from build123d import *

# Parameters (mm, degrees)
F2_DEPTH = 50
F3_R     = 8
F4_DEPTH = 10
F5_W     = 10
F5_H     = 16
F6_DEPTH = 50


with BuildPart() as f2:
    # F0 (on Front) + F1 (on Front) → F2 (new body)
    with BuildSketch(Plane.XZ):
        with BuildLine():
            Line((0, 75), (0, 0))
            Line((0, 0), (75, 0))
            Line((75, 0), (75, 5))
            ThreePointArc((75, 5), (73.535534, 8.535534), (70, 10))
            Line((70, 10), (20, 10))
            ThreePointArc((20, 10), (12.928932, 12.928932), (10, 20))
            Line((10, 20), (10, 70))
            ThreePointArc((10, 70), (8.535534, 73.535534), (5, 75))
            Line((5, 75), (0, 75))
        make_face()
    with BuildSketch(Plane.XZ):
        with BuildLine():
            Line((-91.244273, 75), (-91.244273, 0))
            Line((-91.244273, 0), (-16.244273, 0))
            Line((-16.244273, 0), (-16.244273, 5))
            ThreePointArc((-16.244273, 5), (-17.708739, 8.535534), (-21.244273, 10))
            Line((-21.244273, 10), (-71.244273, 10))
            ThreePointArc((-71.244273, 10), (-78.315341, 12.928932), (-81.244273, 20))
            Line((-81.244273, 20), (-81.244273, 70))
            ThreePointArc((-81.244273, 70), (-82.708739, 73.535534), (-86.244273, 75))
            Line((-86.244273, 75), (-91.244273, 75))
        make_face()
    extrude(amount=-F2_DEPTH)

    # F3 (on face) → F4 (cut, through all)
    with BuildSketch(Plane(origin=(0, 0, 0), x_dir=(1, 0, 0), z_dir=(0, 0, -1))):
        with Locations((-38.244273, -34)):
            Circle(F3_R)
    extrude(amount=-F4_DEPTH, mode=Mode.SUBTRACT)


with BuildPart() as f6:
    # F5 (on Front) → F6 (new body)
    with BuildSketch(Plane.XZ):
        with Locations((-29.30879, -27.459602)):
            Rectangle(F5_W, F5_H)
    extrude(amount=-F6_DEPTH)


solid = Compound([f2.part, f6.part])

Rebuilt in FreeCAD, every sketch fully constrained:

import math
import FreeCAD as App
import Part
import Sketcher
Q = App.Units.Quantity

doc = App.newDocument("Part")
body = doc.addObject("PartDesign::Body", "Body")
body.AllowCompound = True

# Sketch on XZ plane
sketch1 = body.newObject("Sketcher::SketchObject", "Sketch")
sketch1.AttachmentSupport = (doc.getObject("XZ_Plane"), [""])
sketch1.MapMode = "FlatFace"
sketch1.addGeometry(Part.LineSegment(App.Vector(0, 75, 0), App.Vector(0, 0, 0)), False)
sketch1.addGeometry(Part.LineSegment(App.Vector(0, 0, 0), App.Vector(75, 0, 0)), False)
sketch1.addGeometry(Part.LineSegment(App.Vector(75, 0, 0), App.Vector(75, 5, 0)), False)
sketch1.addGeometry(Part.ArcOfCircle(Part.Circle(App.Vector(70, 5, 0), App.Vector(0, 0, 1), 5), math.radians(0), math.radians(90)), False)
sketch1.addGeometry(Part.LineSegment(App.Vector(70, 10, 0), App.Vector(20, 10, 0)), False)
sketch1.addGeometry(Part.ArcOfCircle(Part.Circle(App.Vector(20, 20, 0), App.Vector(0, 0, 1), 10), math.radians(180), math.radians(270)), False)
sketch1.addGeometry(Part.LineSegment(App.Vector(10, 20, 0), App.Vector(10, 70, 0)), False)
sketch1.addGeometry(Part.ArcOfCircle(Part.Circle(App.Vector(5, 70, 0), App.Vector(0, 0, 1), 5), math.radians(0), math.radians(90)), False)
sketch1.addGeometry(Part.LineSegment(App.Vector(5, 75, 0), App.Vector(0, 75, 0)), False)
sketch1.addGeometry(Part.LineSegment(App.Vector(-91.2, 75, 0), App.Vector(-91.2, 0, 0)), False)
sketch1.addGeometry(Part.LineSegment(App.Vector(-91.2, 0, 0), App.Vector(-16.2, 0, 0)), False)
sketch1.addGeometry(Part.LineSegment(App.Vector(-16.2, 0, 0), App.Vector(-16.2, 5, 0)), False)
sketch1.addGeometry(Part.ArcOfCircle(Part.Circle(App.Vector(-21.2, 5, 0), App.Vector(0, 0, 1), 5), math.radians(0), math.radians(90)), False)
sketch1.addGeometry(Part.LineSegment(App.Vector(-21.2, 10, 0), App.Vector(-71.2, 10, 0)), False)
sketch1.addGeometry(Part.ArcOfCircle(Part.Circle(App.Vector(-71.2, 20, 0), App.Vector(0, 0, 1), 10), math.radians(180), math.radians(270)), False)
sketch1.addGeometry(Part.LineSegment(App.Vector(-81.2, 20, 0), App.Vector(-81.2, 70, 0)), False)
sketch1.addGeometry(Part.ArcOfCircle(Part.Circle(App.Vector(-86.2, 70, 0), App.Vector(0, 0, 1), 5), math.radians(0), math.radians(90)), False)
sketch1.addGeometry(Part.LineSegment(App.Vector(-86.2, 75, 0), App.Vector(-91.2, 75, 0)), False)
sketch1.addConstraint(Sketcher.Constraint("Coincident", 0, 2, 1, 1))
sketch1.addConstraint(Sketcher.Constraint("Coincident", 1, 2, 2, 1))
sketch1.addConstraint(Sketcher.Constraint("Tangent", 2, 2, 3, 1))
sketch1.addConstraint(Sketcher.Constraint("Tangent", 3, 2, 4, 1))
sketch1.addConstraint(Sketcher.Constraint("Tangent", 4, 2, 5, 2))
sketch1.addConstraint(Sketcher.Constraint("Tangent", 5, 1, 6, 1))
sketch1.addConstraint(Sketcher.Constraint("Tangent", 6, 2, 7, 1))
sketch1.addConstraint(Sketcher.Constraint("Tangent", 7, 2, 8, 1))
sketch1.addConstraint(Sketcher.Constraint("Coincident", 8, 2, 0, 1))
sketch1.addConstraint(Sketcher.Constraint("Coincident", 9, 2, 10, 1))
sketch1.addConstraint(Sketcher.Constraint("Coincident", 10, 2, 11, 1))
sketch1.addConstraint(Sketcher.Constraint("Tangent", 11, 2, 12, 1))
sketch1.addConstraint(Sketcher.Constraint("Tangent", 12, 2, 13, 1))
sketch1.addConstraint(Sketcher.Constraint("Tangent", 13, 2, 14, 2))
sketch1.addConstraint(Sketcher.Constraint("Tangent", 14, 1, 15, 1))
sketch1.addConstraint(Sketcher.Constraint("Tangent", 15, 2, 16, 1))
sketch1.addConstraint(Sketcher.Constraint("Tangent", 16, 2, 17, 1))
sketch1.addConstraint(Sketcher.Constraint("Coincident", 17, 2, 9, 1))
sketch1.addConstraint(Sketcher.Constraint("Vertical", 0))
sketch1.addConstraint(Sketcher.Constraint("Horizontal", 1))
sketch1.addConstraint(Sketcher.Constraint("Vertical", 2))
sketch1.addConstraint(Sketcher.Constraint("Horizontal", 4))
sketch1.addConstraint(Sketcher.Constraint("Vertical", 6))
sketch1.addConstraint(Sketcher.Constraint("Horizontal", 8))
sketch1.addConstraint(Sketcher.Constraint("Vertical", 9))
sketch1.addConstraint(Sketcher.Constraint("Horizontal", 10))
sketch1.addConstraint(Sketcher.Constraint("Vertical", 11))
sketch1.addConstraint(Sketcher.Constraint("Horizontal", 13))
sketch1.addConstraint(Sketcher.Constraint("Vertical", 15))
sketch1.addConstraint(Sketcher.Constraint("Horizontal", 17))
sketch1.addConstraint(Sketcher.Constraint("Coincident", 0, 2, -1, 1))
sketch1.addConstraint(Sketcher.Constraint("Equal", 3, 7))
sketch1.addConstraint(Sketcher.Constraint("Equal", 7, 12))
sketch1.addConstraint(Sketcher.Constraint("Equal", 5, 14))
sketch1.addConstraint(Sketcher.Constraint("Equal", 12, 16))
sketch1.addConstraint(Sketcher.Constraint("PointOnObject", 9, 2, -1))
sketch1.addConstraint(Sketcher.Constraint("Horizontal", 3, 3, 12, 3))
sketch1.addConstraint(Sketcher.Constraint("Horizontal", 7, 3, 16, 3))
sketch1.addConstraint(Sketcher.Constraint("Equal", 1, 10))
sketch1.addConstraint(Sketcher.Constraint("Equal", 4, 13))
sketch1.addConstraint(Sketcher.Constraint("Equal", 10, 0))
sketch1.addConstraint(Sketcher.Constraint("Equal", 17, 2))
sketch1.addConstraint(Sketcher.Constraint("Radius", 3, Q("5 mm")))
sketch1.addConstraint(Sketcher.Constraint("Radius", 5, Q("9.999999 mm")))
sketch1.addConstraint(Sketcher.Constraint("DistanceX", 1, 1, 1, 2, Q("75 mm")))
sketch1.addConstraint(Sketcher.Constraint("DistanceX", 4, 2, 4, 1, Q("50 mm")))
sketch1.addConstraint(Sketcher.Constraint("DistanceX", 12, 3, -1, 1, Q("21.244273 mm")))
pad1 = body.newObject("PartDesign::Pad", "Pad")
pad1.Profile = sketch1
pad1.Length = 50
pad1.Reversed = True

# Sketch on XY plane
sketch2 = body.newObject("Sketcher::SketchObject", "Sketch001")
sketch2.AttachmentSupport = (doc.getObject("XY_Plane"), [""])
sketch2.MapMode = "FlatFace"
sketch2.addGeometry(Part.Circle(App.Vector(-38, 34, 0), App.Vector(0, 0, 1), 8), False)
sketch2.addConstraint(Sketcher.Constraint("Diameter", 0, Q("16 mm")))
sketch2.addConstraint(Sketcher.Constraint("DistanceY", -1, 1, 0, 3, Q("34 mm")))
sketch2.addConstraint(Sketcher.Constraint("DistanceX", 0, 3, -1, 1, Q("38.244273 mm")))
pocket1 = body.newObject("PartDesign::Pocket", "Pocket")
pocket1.Profile = sketch2
pocket1.Type = "ThroughAll"
pocket1.Reversed = True
body2 = doc.addObject("PartDesign::Body", "Body001")

# Sketch on XZ plane
sketch3 = body2.newObject("Sketcher::SketchObject", "Sketch002")
sketch3.AttachmentSupport = (doc.getObject("XZ_Plane001"), [""])
sketch3.MapMode = "FlatFace"
sketch3.addGeometry(Part.LineSegment(App.Vector(-34, -19, 0), App.Vector(-34, -35, 0)), False)
sketch3.addGeometry(Part.LineSegment(App.Vector(-34, -35, 0), App.Vector(-24, -35, 0)), False)
sketch3.addGeometry(Part.LineSegment(App.Vector(-24, -35, 0), App.Vector(-24, -19, 0)), False)
sketch3.addGeometry(Part.LineSegment(App.Vector(-24, -19, 0), App.Vector(-34, -19, 0)), False)
sketch3.addConstraint(Sketcher.Constraint("Coincident", 0, 2, 1, 1))
sketch3.addConstraint(Sketcher.Constraint("Coincident", 1, 2, 2, 1))
sketch3.addConstraint(Sketcher.Constraint("Coincident", 2, 2, 3, 1))
sketch3.addConstraint(Sketcher.Constraint("Coincident", 3, 2, 0, 1))
sketch3.addConstraint(Sketcher.Constraint("Vertical", 0))
sketch3.addConstraint(Sketcher.Constraint("Horizontal", 1))
sketch3.addConstraint(Sketcher.Constraint("Vertical", 2))
sketch3.addConstraint(Sketcher.Constraint("Horizontal", 3))
sketch3.addConstraint(Sketcher.Constraint("DistanceX", 1, 1, 1, 2, Q("10 mm")))
sketch3.addConstraint(Sketcher.Constraint("DistanceY", 0, 2, 0, 1, Q("16 mm")))
sketch3.addConstraint(Sketcher.Constraint("DistanceY", 0, 2, -1, 1, Q("35.459602 mm")))
sketch3.addConstraint(Sketcher.Constraint("DistanceX", 0, 2, -1, 1, Q("34.30879 mm")))
pad2 = body2.newObject("PartDesign::Pad", "Pad001")
pad2.Profile = sketch3
pad2.Length = 50
pad2.Reversed = True

doc.recompute()
